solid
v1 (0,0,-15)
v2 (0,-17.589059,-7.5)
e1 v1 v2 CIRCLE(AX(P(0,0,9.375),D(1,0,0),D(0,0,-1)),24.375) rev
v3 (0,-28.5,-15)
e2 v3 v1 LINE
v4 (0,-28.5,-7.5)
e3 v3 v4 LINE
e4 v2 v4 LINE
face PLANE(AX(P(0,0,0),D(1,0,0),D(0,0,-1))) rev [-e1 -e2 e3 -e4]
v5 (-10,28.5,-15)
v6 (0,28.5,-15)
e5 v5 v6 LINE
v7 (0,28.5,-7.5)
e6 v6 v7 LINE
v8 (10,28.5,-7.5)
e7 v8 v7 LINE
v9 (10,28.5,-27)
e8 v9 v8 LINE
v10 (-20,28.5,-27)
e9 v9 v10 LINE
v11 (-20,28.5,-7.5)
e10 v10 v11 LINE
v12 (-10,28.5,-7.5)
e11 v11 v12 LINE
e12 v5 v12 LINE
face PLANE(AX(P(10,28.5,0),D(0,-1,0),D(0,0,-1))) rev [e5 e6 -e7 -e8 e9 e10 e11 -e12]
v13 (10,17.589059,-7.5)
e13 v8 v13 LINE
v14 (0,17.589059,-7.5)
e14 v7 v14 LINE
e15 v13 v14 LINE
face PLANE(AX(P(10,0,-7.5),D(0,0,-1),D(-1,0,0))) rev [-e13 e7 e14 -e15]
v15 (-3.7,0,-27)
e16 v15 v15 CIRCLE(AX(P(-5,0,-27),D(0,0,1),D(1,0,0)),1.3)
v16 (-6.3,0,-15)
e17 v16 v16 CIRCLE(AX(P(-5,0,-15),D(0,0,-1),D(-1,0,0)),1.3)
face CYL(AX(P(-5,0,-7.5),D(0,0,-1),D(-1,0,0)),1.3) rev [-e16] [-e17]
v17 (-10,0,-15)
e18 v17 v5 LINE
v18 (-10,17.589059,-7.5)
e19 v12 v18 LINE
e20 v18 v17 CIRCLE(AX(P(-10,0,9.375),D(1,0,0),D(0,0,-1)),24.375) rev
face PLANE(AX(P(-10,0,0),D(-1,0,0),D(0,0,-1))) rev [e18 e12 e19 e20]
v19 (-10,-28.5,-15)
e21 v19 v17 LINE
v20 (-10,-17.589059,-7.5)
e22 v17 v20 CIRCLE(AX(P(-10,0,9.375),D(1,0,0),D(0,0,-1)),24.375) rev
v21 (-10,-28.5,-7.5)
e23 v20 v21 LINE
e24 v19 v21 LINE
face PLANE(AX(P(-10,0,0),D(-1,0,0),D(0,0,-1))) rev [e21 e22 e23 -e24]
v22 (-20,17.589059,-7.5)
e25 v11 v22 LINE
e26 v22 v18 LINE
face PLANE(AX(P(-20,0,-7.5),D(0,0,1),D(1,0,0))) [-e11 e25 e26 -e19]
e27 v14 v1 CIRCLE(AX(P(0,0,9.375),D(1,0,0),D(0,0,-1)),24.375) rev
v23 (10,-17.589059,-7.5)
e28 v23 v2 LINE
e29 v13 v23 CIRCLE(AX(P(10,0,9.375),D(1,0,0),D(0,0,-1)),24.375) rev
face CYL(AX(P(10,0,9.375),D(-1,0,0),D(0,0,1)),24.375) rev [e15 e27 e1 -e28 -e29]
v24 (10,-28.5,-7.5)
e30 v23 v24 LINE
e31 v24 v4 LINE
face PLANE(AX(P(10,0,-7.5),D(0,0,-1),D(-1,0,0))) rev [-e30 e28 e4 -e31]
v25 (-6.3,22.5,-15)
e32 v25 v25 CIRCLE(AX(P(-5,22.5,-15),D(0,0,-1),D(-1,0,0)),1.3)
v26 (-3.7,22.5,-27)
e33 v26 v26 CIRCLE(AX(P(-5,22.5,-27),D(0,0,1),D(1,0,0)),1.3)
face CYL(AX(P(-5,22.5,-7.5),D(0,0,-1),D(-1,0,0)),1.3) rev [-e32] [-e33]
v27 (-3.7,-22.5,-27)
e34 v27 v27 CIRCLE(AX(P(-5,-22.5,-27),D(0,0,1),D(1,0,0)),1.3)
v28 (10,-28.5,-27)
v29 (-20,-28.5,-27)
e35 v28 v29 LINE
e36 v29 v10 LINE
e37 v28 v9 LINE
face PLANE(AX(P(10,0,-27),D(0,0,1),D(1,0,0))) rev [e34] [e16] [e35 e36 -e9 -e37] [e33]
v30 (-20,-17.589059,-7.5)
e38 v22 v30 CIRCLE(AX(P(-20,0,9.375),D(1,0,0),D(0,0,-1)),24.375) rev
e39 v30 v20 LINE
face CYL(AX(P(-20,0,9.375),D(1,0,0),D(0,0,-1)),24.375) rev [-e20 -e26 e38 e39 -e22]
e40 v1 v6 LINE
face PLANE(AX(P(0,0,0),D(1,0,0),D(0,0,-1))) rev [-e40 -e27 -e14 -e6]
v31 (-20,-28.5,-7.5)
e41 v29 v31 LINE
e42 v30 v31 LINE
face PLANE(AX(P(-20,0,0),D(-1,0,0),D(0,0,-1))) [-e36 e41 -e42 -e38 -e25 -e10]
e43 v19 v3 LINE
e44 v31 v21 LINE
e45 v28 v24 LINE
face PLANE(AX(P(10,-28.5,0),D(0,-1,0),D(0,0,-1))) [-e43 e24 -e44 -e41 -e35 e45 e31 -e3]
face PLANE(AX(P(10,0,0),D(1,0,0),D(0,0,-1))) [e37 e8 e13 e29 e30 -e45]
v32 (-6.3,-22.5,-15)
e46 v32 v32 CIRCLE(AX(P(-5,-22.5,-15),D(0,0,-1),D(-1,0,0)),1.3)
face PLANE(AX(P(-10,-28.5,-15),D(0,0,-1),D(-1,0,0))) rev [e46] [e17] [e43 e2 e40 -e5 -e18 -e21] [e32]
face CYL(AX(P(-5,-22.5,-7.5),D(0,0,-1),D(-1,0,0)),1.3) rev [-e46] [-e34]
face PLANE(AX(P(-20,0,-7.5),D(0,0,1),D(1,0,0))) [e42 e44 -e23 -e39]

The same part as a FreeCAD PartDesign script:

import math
import FreeCAD as App
import Part
import Sketcher

V = App.Vector

doc = App.newDocument("Part")
params = doc.addObject("Spreadsheet::Sheet", "Params")
for row, (alias, value) in enumerate([
    ("sketch1_width", "57 mm"),
    ("sketch1_height", "19.5 mm"),
    ("pad1_length", "10 mm"),
    ("sketch2_width", "57 mm"),
    ("sketch2_height", "12 mm"),
    ("pad2_length", "10 mm"),
    ("sketch3_diameter", "2.6 mm"),
], start=1):
    params.set(f"A{row}", alias)
    params.set(f"B{row}", "=" + value)
    params.setAlias(f"B{row}", alias)

body = doc.addObject("PartDesign::Body", "Body")

# Sketch on YZ plane
sketch1 = body.newObject("Sketcher::SketchObject", "Sketch")
sketch1.AttachmentSupport = (doc.getObject("YZ_Plane"), [""])
sketch1.MapMode = "FlatFace"
sketch1.addGeometry([
    Part.LineSegment(V(28, -27, 0), V(28, -8, 0)),  # 0
    Part.LineSegment(V(28, -8, 0), V(18, -8, 0)),  # 1
    Part.ArcOfCircle(Part.Circle(V(0, 9, 0), V(0, 0, 1), 24), math.radians(-136), math.radians(-44)),  # 2
    Part.LineSegment(V(-18, -8, 0), V(-28, -8, 0)),  # 3
    Part.LineSegment(V(-28, -8, 0), V(-28, -27, 0)),  # 4
    Part.LineSegment(V(-28, -27, 0), V(28, -27, 0)),  # 5
], False)
sketch1.addConstraint([
    Sketcher.Constraint("Coincident", 0, 2, 1, 1),
    Sketcher.Constraint("Coincident", 1, 2, 2, 2),
    Sketcher.Constraint("Coincident", 2, 1, 3, 1),
    Sketcher.Constraint("Coincident", 3, 2, 4, 1),
    Sketcher.Constraint("Coincident", 4, 2, 5, 1),
    Sketcher.Constraint("Coincident", 5, 2, 0, 1),
    Sketcher.Constraint("Vertical", 0),
    Sketcher.Constraint("Horizontal", 1),
    Sketcher.Constraint("Horizontal", 3),
    Sketcher.Constraint("Vertical", 4),
    Sketcher.Constraint("Horizontal", 5),
    Sketcher.Constraint("Symmetric", 1, 2, 2, 1, -2),
    Sketcher.Constraint("Equal", 1, 3),
    Sketcher.Constraint("DistanceX", 5, 1, 5, 2, 57.0),
    Sketcher.Constraint("DistanceY", 0, 1, 0, 2, 19.5),
    Sketcher.Constraint("DistanceY", 4, 2, -1, 1, 27.0),
    Sketcher.Constraint("Radius", 2, 24.375),
    Sketcher.Constraint("DistanceY", -1, 1, 2, 3, 9.375),
])
sketch1.setExpression("Constraints[13]", "Params.sketch1_width")
sketch1.setExpression("Constraints[14]", "Params.sketch1_height")
pad1 = body.newObject("PartDesign::Pad", "Pad")
pad1.Profile = sketch1
pad1.setExpression("Length", "Params.pad1_length")

# Sketch on YZ plane
sketch2 = body.newObject("Sketcher::SketchObject", "Sketch001")
sketch2.AttachmentSupport = (doc.getObject("YZ_Plane"), [""])
sketch2.MapMode = "FlatFace"
sketch2.addGeometry([
    Part.LineSegment(V(28, -27, 0), V(-28, -27, 0)),
    Part.LineSegment(V(-28, -27, 0), V(-28, -15, 0)),
    Part.LineSegment(V(-28, -15, 0), V(28, -15, 0)),
    Part.LineSegment(V(28, -15, 0), V(28, -27, 0)),
], False)
sketch2.addConstraint([
    Sketcher.Constraint("Coincident", 0, 2, 1, 1),
    Sketcher.Constraint("Coincident", 1, 2, 2, 1),
    Sketcher.Constraint("Coincident", 2, 2, 3, 1),
    Sketcher.Constraint("Coincident", 3, 2, 0, 1),
    Sketcher.Constraint("Horizontal", 0),
    Sketcher.Constraint("Vertical", 1),
    Sketcher.Constraint("Horizontal", 2),
    Sketcher.Constraint("Vertical", 3),
    Sketcher.Constraint("DistanceX", 0, 2, 0, 1, 57.0),
    Sketcher.Constraint("DistanceY", 1, 1, 1, 2, 12.0),
    Sketcher.Constraint("DistanceY", 0, 2, -1, 1, 27.0),
    Sketcher.Constraint("DistanceX", 0, 2, -1, 1, 28.5),
])
sketch2.setExpression("Constraints[8]", "Params.sketch2_width")
sketch2.setExpression("Constraints[9]", "Params.sketch2_height")
pad2 = body.newObject("PartDesign::Pad", "Pad001")
pad2.Profile = sketch2
pad2.setExpression("Length", "Params.pad2_length")
pad2.Reversed = True
doc.recompute()

datumplane = body.newObject("PartDesign::Plane", "DatumPlane")
datumplane.AttachmentSupport = (doc.getObject("YZ_Plane"), [""])
datumplane.MapMode = "FlatFace"
datumplane.AttachmentOffset = App.Placement(V(0, 0, -5), App.Rotation())
mirrored = body.newObject("PartDesign::Mirrored", "Mirrored")
mirrored.Originals = [pad1]
mirrored.MirrorPlane = (datumplane, [""])
body.Tip = mirrored

# Sketch on XY plane
sketch3 = body.newObject("Sketcher::SketchObject", "Sketch002")
sketch3.AttachmentSupport = (doc.getObject("XY_Plane"), [""])
sketch3.MapMode = "FlatFace"
sketch3.AttachmentOffset = App.Placement(V(0, 0, -27), App.Rotation())
sketch3.addGeometry([
    Part.Circle(V(-5, -22.5, 0), V(0, 0, 1), 1.3),
    Part.Circle(V(-5, 22.5, 0), V(0, 0, 1), 1.3),
    Part.Circle(V(-5, 0, 0), V(0, 0, 1), 1.3),
], False)
sketch3.addConstraint([
    Sketcher.Constraint("Equal", 0, 1),
    Sketcher.Constraint("Equal", 1, 2),
    Sketcher.Constraint("Symmetric", 0, 3, 1, 3, -1),
    Sketcher.Constraint("PointOnObject", 2, 3, -1),
    Sketcher.Constraint("Vertical", 1, 3, 2, 3),
    Sketcher.Constraint("Diameter", 0, 2.6),
    Sketcher.Constraint("DistanceX", 0, 3, -1, 1, 5.0),
    Sketcher.Constraint("DistanceY", 0, 3, 1, 3, 45.0),
])
sketch3.setExpression("Constraints[5]", "Params.sketch3_diameter")
pocket1 = body.newObject("PartDesign::Pocket", "Pocket")
pocket1.Profile = sketch3
pocket1.Type = "ThroughAll"
pocket1.Midplane = True

doc.recompute()
